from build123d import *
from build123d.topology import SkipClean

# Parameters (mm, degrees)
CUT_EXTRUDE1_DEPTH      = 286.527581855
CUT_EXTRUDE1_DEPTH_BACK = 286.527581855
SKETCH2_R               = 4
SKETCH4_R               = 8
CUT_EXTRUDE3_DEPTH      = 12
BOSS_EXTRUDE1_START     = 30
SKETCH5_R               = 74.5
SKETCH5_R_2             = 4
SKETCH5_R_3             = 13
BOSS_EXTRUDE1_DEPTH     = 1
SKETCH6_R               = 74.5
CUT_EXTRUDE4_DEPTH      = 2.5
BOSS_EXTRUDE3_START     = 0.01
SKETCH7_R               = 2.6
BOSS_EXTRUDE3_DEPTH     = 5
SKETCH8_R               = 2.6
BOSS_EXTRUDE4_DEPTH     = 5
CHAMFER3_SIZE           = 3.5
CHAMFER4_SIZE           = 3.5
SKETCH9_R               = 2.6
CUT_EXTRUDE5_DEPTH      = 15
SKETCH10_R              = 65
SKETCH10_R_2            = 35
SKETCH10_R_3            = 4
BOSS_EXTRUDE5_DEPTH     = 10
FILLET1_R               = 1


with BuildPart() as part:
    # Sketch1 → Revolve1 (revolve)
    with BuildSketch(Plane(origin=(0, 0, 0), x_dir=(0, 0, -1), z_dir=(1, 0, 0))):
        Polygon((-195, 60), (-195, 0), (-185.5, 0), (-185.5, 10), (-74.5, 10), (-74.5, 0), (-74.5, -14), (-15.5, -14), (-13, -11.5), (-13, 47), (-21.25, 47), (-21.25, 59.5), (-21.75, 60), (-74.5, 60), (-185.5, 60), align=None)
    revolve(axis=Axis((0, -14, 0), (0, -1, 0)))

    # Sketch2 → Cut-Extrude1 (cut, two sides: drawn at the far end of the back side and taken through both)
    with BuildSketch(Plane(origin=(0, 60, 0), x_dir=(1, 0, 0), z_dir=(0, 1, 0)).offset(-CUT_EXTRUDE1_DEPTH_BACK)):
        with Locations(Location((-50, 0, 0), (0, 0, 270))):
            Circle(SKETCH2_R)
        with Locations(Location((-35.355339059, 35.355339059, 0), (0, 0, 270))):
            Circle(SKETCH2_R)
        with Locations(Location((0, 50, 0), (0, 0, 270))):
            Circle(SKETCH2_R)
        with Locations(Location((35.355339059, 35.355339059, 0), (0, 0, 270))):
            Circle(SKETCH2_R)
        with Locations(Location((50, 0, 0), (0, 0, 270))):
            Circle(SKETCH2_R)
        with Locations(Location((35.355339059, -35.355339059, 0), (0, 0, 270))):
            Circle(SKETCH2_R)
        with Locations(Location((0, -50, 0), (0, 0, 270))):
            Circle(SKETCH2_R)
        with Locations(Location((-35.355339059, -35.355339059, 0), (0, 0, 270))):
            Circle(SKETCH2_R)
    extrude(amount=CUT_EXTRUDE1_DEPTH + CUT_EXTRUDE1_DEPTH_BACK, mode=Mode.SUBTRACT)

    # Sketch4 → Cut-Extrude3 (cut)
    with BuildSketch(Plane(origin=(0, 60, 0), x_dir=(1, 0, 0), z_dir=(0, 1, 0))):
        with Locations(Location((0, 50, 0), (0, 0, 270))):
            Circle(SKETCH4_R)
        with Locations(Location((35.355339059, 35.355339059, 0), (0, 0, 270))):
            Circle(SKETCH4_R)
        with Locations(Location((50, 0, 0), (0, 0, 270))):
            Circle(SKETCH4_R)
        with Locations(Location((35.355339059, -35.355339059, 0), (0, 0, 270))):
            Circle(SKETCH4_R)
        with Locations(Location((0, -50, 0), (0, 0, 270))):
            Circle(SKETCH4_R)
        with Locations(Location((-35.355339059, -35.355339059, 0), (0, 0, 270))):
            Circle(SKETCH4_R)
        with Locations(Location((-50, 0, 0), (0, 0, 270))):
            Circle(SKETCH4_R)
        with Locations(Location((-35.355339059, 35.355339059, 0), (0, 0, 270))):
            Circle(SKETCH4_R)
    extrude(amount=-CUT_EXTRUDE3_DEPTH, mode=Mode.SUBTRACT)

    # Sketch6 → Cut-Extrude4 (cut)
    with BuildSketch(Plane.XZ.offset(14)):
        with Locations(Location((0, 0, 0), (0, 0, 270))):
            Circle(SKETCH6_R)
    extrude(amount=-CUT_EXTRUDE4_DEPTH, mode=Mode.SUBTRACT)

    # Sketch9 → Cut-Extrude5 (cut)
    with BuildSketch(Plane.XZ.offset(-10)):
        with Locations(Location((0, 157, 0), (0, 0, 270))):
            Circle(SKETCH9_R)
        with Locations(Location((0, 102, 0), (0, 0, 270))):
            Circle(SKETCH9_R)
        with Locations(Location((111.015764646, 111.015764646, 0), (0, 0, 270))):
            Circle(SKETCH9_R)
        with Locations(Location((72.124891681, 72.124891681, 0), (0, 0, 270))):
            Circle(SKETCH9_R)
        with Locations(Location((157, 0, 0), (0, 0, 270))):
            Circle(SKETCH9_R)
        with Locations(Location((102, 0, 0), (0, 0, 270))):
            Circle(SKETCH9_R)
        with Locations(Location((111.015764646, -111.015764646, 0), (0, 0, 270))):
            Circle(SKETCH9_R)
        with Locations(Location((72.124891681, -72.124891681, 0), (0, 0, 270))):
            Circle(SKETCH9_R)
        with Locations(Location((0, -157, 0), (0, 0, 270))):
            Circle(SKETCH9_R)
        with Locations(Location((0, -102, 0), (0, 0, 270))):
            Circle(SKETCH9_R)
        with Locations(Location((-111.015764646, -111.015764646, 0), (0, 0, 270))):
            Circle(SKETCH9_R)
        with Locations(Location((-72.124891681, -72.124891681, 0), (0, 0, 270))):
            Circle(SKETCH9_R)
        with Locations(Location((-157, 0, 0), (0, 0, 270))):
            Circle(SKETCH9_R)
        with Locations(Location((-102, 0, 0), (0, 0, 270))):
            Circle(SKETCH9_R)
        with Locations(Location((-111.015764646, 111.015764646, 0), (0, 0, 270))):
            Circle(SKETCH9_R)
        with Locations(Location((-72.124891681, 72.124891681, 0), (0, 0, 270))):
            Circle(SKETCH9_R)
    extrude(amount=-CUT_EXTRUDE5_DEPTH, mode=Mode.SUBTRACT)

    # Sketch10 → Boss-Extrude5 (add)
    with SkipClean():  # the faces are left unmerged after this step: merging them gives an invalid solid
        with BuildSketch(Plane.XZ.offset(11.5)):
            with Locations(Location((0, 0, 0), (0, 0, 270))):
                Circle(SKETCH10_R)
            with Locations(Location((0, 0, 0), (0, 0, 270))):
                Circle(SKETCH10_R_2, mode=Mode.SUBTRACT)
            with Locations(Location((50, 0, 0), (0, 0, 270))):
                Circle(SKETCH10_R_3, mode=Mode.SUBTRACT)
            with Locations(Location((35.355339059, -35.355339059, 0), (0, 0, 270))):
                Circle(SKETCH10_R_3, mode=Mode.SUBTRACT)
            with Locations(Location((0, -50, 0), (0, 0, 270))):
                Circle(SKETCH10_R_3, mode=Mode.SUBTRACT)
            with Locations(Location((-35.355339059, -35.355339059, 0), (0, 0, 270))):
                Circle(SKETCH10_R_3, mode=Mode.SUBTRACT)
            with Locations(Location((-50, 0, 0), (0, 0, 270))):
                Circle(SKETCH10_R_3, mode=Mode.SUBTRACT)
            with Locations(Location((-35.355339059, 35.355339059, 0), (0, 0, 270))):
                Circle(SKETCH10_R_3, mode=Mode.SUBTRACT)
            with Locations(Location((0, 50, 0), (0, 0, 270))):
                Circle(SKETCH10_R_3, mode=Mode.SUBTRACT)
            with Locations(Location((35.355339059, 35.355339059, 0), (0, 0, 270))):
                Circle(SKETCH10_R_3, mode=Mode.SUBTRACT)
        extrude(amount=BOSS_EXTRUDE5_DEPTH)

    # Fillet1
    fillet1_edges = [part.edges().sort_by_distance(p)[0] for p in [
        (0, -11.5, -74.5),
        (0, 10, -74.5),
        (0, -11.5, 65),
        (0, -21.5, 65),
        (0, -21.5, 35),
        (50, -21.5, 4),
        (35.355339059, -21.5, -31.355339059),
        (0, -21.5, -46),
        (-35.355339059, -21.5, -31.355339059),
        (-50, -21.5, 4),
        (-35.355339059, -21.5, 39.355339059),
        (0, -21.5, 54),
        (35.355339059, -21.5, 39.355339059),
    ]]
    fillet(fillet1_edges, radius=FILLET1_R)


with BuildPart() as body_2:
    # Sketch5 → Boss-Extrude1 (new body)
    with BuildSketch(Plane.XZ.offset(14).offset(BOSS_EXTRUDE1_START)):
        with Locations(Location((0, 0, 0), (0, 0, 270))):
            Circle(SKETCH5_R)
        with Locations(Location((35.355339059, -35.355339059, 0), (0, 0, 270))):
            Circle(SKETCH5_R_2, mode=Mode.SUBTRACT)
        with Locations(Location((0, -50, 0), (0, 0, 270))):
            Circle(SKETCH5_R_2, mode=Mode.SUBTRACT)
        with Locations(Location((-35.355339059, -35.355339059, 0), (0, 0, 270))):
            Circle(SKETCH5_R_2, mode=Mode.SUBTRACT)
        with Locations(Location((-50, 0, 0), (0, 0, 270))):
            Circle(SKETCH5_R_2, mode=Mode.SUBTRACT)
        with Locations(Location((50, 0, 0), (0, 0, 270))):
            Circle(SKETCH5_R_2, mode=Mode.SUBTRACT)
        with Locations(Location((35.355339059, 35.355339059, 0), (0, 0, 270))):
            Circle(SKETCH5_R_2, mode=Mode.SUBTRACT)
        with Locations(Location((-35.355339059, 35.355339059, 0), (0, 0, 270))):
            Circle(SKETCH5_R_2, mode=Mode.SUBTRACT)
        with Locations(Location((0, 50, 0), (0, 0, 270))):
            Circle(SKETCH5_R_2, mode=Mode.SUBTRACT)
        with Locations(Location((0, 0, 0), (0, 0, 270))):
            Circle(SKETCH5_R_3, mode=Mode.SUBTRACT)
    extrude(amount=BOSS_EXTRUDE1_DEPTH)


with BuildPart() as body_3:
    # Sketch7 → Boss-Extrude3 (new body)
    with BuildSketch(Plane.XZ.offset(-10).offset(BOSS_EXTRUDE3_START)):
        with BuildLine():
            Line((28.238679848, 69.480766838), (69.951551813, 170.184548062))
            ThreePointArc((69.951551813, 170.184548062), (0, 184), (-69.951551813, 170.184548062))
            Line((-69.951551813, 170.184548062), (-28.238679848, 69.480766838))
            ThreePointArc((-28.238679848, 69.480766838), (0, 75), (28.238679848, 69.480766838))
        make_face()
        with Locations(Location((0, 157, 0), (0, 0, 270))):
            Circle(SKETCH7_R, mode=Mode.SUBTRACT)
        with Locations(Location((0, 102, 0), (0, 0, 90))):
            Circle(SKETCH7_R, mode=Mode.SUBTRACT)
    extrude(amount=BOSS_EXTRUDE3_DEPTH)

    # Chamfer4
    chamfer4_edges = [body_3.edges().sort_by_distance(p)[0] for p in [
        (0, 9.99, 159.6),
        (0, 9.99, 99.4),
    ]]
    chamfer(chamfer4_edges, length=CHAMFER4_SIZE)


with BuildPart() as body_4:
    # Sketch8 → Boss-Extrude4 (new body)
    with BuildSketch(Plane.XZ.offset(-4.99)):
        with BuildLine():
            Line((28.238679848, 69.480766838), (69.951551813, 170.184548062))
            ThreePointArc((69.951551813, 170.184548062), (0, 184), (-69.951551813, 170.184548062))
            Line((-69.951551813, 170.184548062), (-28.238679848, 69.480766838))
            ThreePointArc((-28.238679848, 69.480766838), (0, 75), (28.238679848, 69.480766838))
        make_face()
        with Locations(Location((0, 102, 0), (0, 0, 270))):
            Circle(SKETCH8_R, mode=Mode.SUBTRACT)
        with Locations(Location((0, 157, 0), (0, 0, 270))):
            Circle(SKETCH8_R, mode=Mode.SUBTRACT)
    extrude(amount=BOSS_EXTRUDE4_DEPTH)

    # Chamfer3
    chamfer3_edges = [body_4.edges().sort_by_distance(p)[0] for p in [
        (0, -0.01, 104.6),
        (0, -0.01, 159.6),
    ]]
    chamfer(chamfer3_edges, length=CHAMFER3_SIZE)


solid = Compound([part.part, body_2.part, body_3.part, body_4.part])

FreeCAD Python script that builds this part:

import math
import FreeCAD as App
import Part
import Sketcher
Q = App.Units.Quantity


def edges_at(feature, points):
    """Names of the edges that pass closest to the given points."""
    edges = feature.Shape.Edges
    near = lambda p: min(range(len(edges)), key=lambda i: edges[i].distToShape(Part.Vertex(*p))[0])
    return sorted({f"Edge{near(p) + 1}" for p in points})

doc = App.newDocument("Part")
body = doc.addObject("PartDesign::Body", "Body")

# Sketch on YZ plane
sketch1 = body.newObject("Sketcher::SketchObject", "Sketch")
sketch1.AttachmentSupport = (doc.getObject("YZ_Plane"), [""])
sketch1.MapMode = "FlatFace"
sketch1.addGeometry([
    Part.LineSegment(App.Vector(60, 195, 0), App.Vector(0, 195, 0)),  # 0
    Part.LineSegment(App.Vector(0, 195, 0), App.Vector(0, 185.5, 0)),  # 1
    Part.LineSegment(App.Vector(0, 185.5, 0), App.Vector(10, 185.5, 0)),  # 2
    Part.LineSegment(App.Vector(10, 185.5, 0), App.Vector(10, 74.5, 0)),  # 3
    Part.LineSegment(App.Vector(10, 74.5, 0), App.Vector(-14, 74.5, 0)),  # 4
    Part.LineSegment(App.Vector(-14, 74.5, 0), App.Vector(-14, 15.5, 0)),  # 5
    Part.LineSegment(App.Vector(-14, 15.5, 0), App.Vector(-11.5, 13, 0)),  # 6
    Part.LineSegment(App.Vector(-11.5, 13, 0), App.Vector(47, 13, 0)),  # 7
    Part.LineSegment(App.Vector(47, 13, 0), App.Vector(47, 21.25, 0)),  # 8
    Part.LineSegment(App.Vector(47, 21.25, 0), App.Vector(59.5, 21.25, 0)),  # 9
    Part.LineSegment(App.Vector(59.5, 21.25, 0), App.Vector(60, 21.75, 0)),  # 10
    Part.LineSegment(App.Vector(60, 21.75, 0), App.Vector(60, 195, 0)),  # 11
], False)
sketch1.addConstraint([
    Sketcher.Constraint("Coincident", 0, 2, 1, 1),
    Sketcher.Constraint("Coincident", 1, 2, 2, 1),
    Sketcher.Constraint("Coincident", 2, 2, 3, 1),
    Sketcher.Constraint("Coincident", 3, 2, 4, 1),
    Sketcher.Constraint("Coincident", 4, 2, 5, 1),
    Sketcher.Constraint("Coincident", 5, 2, 6, 1),
    Sketcher.Constraint("Coincident", 6, 2, 7, 1),
    Sketcher.Constraint("Coincident", 7, 2, 8, 1),
    Sketcher.Constraint("Coincident", 8, 2, 9, 1),
    Sketcher.Constraint("Coincident", 9, 2, 10, 1),
    Sketcher.Constraint("Coincident", 10, 2, 11, 1),
    Sketcher.Constraint("Coincident", 11, 2, 0, 1),
    Sketcher.Constraint("Horizontal", 0),
    Sketcher.Constraint("Vertical", 1),
    Sketcher.Constraint("Horizontal", 2),
    Sketcher.Constraint("Vertical", 3),
    Sketcher.Constraint("Horizontal", 4),
    Sketcher.Constraint("Vertical", 5),
    Sketcher.Constraint("Horizontal", 7),
    Sketcher.Constraint("Vertical", 8),
    Sketcher.Constraint("Horizontal", 9),
    Sketcher.Constraint("Vertical", 11),
    Sketcher.Constraint("PointOnObject", 0, 2, -2),
    Sketcher.Constraint("Perpendicular", 6, 10),
    Sketcher.Constraint("DistanceX", 0, 2, 0, 1, Q("60 mm")),
    Sketcher.Constraint("DistanceX", 2, 1, 2, 2, Q("10 mm")),
    Sketcher.Constraint("DistanceX", 4, 2, 4, 1, Q("24 mm")),
    Sketcher.Constraint("DistanceY", 3, 2, 3, 1, Q("111 mm")),
    Sketcher.Constraint("DistanceY", 5, 2, 5, 1, Q("59 mm")),
    Sketcher.Constraint("Angle", 6, Q("-45 deg")),
    Sketcher.Constraint("DistanceX", 7, 1, 7, 2, Q("58.5 mm")),
    Sketcher.Constraint("DistanceX", 9, 1, 9, 2, Q("12.5 mm")),
    Sketcher.Constraint("DistanceY", 1, 2, 1, 1, Q("9.5 mm")),
    Sketcher.Constraint("DistanceY", -1, 1, 0, 2, Q("195 mm")),
    Sketcher.Constraint("DistanceY", -1, 1, 6, 2, Q("13 mm")),
    Sketcher.Constraint("DistanceY", 8, 1, 8, 2, Q("8.25 mm")),
])
revolution = body.newObject("PartDesign::Revolution", "Revolution")
revolution.Profile = sketch1
revolution.ReferenceAxis = (sketch1, ["H_Axis"])
revolution.Angle = 360

# Sketch on XZ plane
sketch2 = body.newObject("Sketcher::SketchObject", "Sketch001")
sketch2.AttachmentSupport = (doc.getObject("XZ_Plane"), [""])
sketch2.MapMode = "FlatFace"
sketch2.AttachmentOffset = App.Placement(App.Vector(0, 0, -60), App.Rotation())
sketch2.addGeometry([
    Part.Circle(App.Vector(-50, 0, 0), App.Vector(0, 0, 1), 4),  # 0
    Part.Circle(App.Vector(-35.355339, -35.355339, 0), App.Vector(0, 0, 1), 4),  # 1
    Part.Circle(App.Vector(0, -50, 0), App.Vector(0, 0, 1), 4),  # 2
    Part.Circle(App.Vector(35.355339, -35.355339, 0), App.Vector(0, 0, 1), 4),  # 3
    Part.Circle(App.Vector(50, 0, 0), App.Vector(0, 0, 1), 4),  # 4
    Part.Circle(App.Vector(35.355339, 35.355339, 0), App.Vector(0, 0, 1), 4),  # 5
    Part.Circle(App.Vector(0, 50, 0), App.Vector(0, 0, 1), 4),  # 6
    Part.Circle(App.Vector(-35.355339, 35.355339, 0), App.Vector(0, 0, 1), 4),  # 7
], False)
sketch2.addConstraint([
    Sketcher.Constraint("Equal", 0, 1),
    Sketcher.Constraint("Equal", 1, 2),
    Sketcher.Constraint("Equal", 2, 3),
    Sketcher.Constraint("Equal", 3, 4),
    Sketcher.Constraint("Equal", 4, 5),
    Sketcher.Constraint("Equal", 5, 6),
    Sketcher.Constraint("Equal", 6, 7),
    Sketcher.Constraint("Symmetric", 0, 3, 4, 3, -1, 1),
    Sketcher.Constraint("Symmetric", 1, 3, 5, 3, -1, 1),
    Sketcher.Constraint("Symmetric", 2, 3, 6, 3, -1, 1),
    Sketcher.Constraint("Symmetric", 3, 3, 7, 3, -1, 1),
    Sketcher.Constraint("Symmetric", 1, 3, 3, 3, -2),
    Sketcher.Constraint("PointOnObject", 0, 3, -1),
    Sketcher.Constraint("PointOnObject", 2, 3, -2),
    Sketcher.Constraint("Diameter", 0, Q("8 mm")),
    Sketcher.Constraint("DistanceX", 0, 3, -1, 1, Q("50 mm")),
    Sketcher.Constraint("DistanceY", 2, 3, -1, 1, Q("50 mm")),
    Sketcher.Constraint("DistanceX", 1, 3, -1, 1, Q("35.355339 mm")),
    Sketcher.Constraint("DistanceY", 1, 3, -1, 1, Q("35.355339 mm")),
])
pocket1 = body.newObject("PartDesign::Pocket", "Pocket")
pocket1.Profile = sketch2
pocket1.Type = "ThroughAll"
pocket1.Midplane = True

# Sketch on XZ plane
sketch3 = body.newObject("Sketcher::SketchObject", "Sketch002")
sketch3.AttachmentSupport = (doc.getObject("XZ_Plane"), [""])
sketch3.MapMode = "FlatFace"
sketch3.AttachmentOffset = App.Placement(App.Vector(0, 0, -60), App.Rotation())
sketch3.addGeometry([
    Part.Circle(App.Vector(0, -50, 0), App.Vector(0, 0, 1), 8),  # 0
    Part.Circle(App.Vector(35.355339, -35.355339, 0), App.Vector(0, 0, 1), 8),  # 1
    Part.Circle(App.Vector(50, 0, 0), App.Vector(0, 0, 1), 8),  # 2
    Part.Circle(App.Vector(35.355339, 35.355339, 0), App.Vector(0, 0, 1), 8),  # 3
    Part.Circle(App.Vector(0, 50, 0), App.Vector(0, 0, 1), 8),  # 4
    Part.Circle(App.Vector(-35.355339, 35.355339, 0), App.Vector(0, 0, 1), 8),  # 5
    Part.Circle(App.Vector(-50, 0, 0), App.Vector(0, 0, 1), 8),  # 6
    Part.Circle(App.Vector(-35.355339, -35.355339, 0), App.Vector(0, 0, 1), 8),  # 7
], False)
sketch3.addConstraint([
    Sketcher.Constraint("Equal", 0, 1),
    Sketcher.Constraint("Equal", 1, 2),
    Sketcher.Constraint("Equal", 2, 3),
    Sketcher.Constraint("Equal", 3, 4),
    Sketcher.Constraint("Equal", 4, 5),
    Sketcher.Constraint("Equal", 5, 6),
    Sketcher.Constraint("Equal", 6, 7),
    Sketcher.Constraint("Symmetric", 0, 3, 4, 3, -1, 1),
    Sketcher.Constraint("Symmetric", 1, 3, 5, 3, -1, 1),
    Sketcher.Constraint("Symmetric", 2, 3, 6, 3, -1, 1),
    Sketcher.Constraint("Symmetric", 3, 3, 7, 3, -1, 1),
    Sketcher.Constraint("Symmetric", 3, 3, 5, 3, -2),
    Sketcher.Constraint("PointOnObject", 0, 3, -2),
    Sketcher.Constraint("PointOnObject", 2, 3, -1),
    Sketcher.Constraint("Diameter", 0, Q("16 mm")),
    Sketcher.Constraint("DistanceY", 0, 3, -1, 1, Q("50 mm")),
    Sketcher.Constraint("DistanceX", -1, 1, 2, 3, Q("50 mm")),
    Sketcher.Constraint("DistanceX", -1, 1, 1, 3, Q("35.355339 mm")),
    Sketcher.Constraint("DistanceY", 1, 3, -1, 1, Q("35.355339 mm")),
])
pocket2 = body.newObject("PartDesign::Pocket", "Pocket001")
pocket2.Profile = sketch3
pocket2.Length = 12
pocket2.Reversed = True

# Sketch on XZ plane
sketch4 = body.newObject("Sketcher::SketchObject", "Sketch003")
sketch4.AttachmentSupport = (doc.getObject("XZ_Plane"), [""])
sketch4.MapMode = "FlatFace"
sketch4.AttachmentOffset = App.Placement(App.Vector(0, 0, 14), App.Rotation())
sketch4.addGeometry(Part.Circle(App.Vector(0, 0, 0), App.Vector(0, 0, 1), 74.5), False)
sketch4.addConstraint([
    Sketcher.Constraint("Coincident", 0, 3, -1, 1),
    Sketcher.Constraint("Diameter", 0, Q("149 mm")),
])
pocket3 = body.newObject("PartDesign::Pocket", "Pocket002")
pocket3.Profile = sketch4
pocket3.Length = 2.5

# Sketch on XZ plane
sketch5 = body.newObject("Sketcher::SketchObject", "Sketch004")
sketch5.AttachmentSupport = (doc.getObject("XZ_Plane"), [""])
sketch5.MapMode = "FlatFace"
sketch5.AttachmentOffset = App.Placement(App.Vector(0, 0, -10), App.Rotation())
sketch5.addGeometry([
    Part.Circle(App.Vector(0, 157, 0), App.Vector(0, 0, 1), 2.6),  # 0
    Part.Circle(App.Vector(0, 102, 0), App.Vector(0, 0, 1), 2.6),  # 1
    Part.Circle(App.Vector(111.015765, 111.015765, 0), App.Vector(0, 0, 1), 2.6),  # 2
    Part.Circle(App.Vector(72.124892, 72.124892, 0), App.Vector(0, 0, 1), 2.6),  # 3
    Part.Circle(App.Vector(157, 0, 0), App.Vector(0, 0, 1), 2.6),  # 4
    Part.Circle(App.Vector(102, 0, 0), App.Vector(0, 0, 1), 2.6),  # 5
    Part.Circle(App.Vector(111.015765, -111.015765, 0), App.Vector(0, 0, 1), 2.6),  # 6
    Part.Circle(App.Vector(72.124892, -72.124892, 0), App.Vector(0, 0, 1), 2.6),  # 7
    Part.Circle(App.Vector(0, -157, 0), App.Vector(0, 0, 1), 2.6),  # 8
    Part.Circle(App.Vector(0, -102, 0), App.Vector(0, 0, 1), 2.6),  # 9
    Part.Circle(App.Vector(-111.015765, -111.015765, 0), App.Vector(0, 0, 1), 2.6),  # 10
    Part.Circle(App.Vector(-72.124892, -72.124892, 0), App.Vector(0, 0, 1), 2.6),  # 11
    Part.Circle(App.Vector(-157, 0, 0), App.Vector(0, 0, 1), 2.6),  # 12
    Part.Circle(App.Vector(-102, 0, 0), App.Vector(0, 0, 1), 2.6),  # 13
    Part.Circle(App.Vector(-111.015765, 111.015765, 0), App.Vector(0, 0, 1), 2.6),  # 14
    Part.Circle(App.Vector(-72.124892, 72.124892, 0), App.Vector(0, 0, 1), 2.6),  # 15
], False)
sketch5.addConstraint([
    Sketcher.Constraint("Equal", 0, 1),
    Sketcher.Constraint("Equal", 1, 2),
    Sketcher.Constraint("Equal", 2, 3),
    Sketcher.Constraint("Equal", 3, 4),
    Sketcher.Constraint("Equal", 4, 5),
    Sketcher.Constraint("Equal", 5, 6),
    Sketcher.Constraint("Equal", 6, 7),
    Sketcher.Constraint("Equal", 7, 8),
    Sketcher.Constraint("Equal", 8, 9),
    Sketcher.Constraint("Equal", 9, 10),
    Sketcher.Constraint("Equal", 10, 11),
    Sketcher.Constraint("Equal", 11, 12),
    Sketcher.Constraint("Equal", 12, 13),
    Sketcher.Constraint("Equal", 13, 14),
    Sketcher.Constraint("Equal", 14, 15),
    Sketcher.Constraint("Symmetric", 0, 3, 8, 3, -1, 1),
    Sketcher.Constraint("Symmetric", 1, 3, 9, 3, -1, 1),
    Sketcher.Constraint("Symmetric", 2, 3, 10, 3, -1, 1),
    Sketcher.Constraint("Symmetric", 3, 3, 11, 3, -1, 1),
    Sketcher.Constraint("Symmetric", 4, 3, 12, 3, -1, 1),
    Sketcher.Constraint("Symmetric", 5, 3, 13, 3, -1, 1),
    Sketcher.Constraint("Symmetric", 6, 3, 14, 3, -1, 1),
    Sketcher.Constraint("Symmetric", 7, 3, 15, 3, -1, 1),
    Sketcher.Constraint("Symmetric", 6, 3, 10, 3, -2),
    Sketcher.Constraint("Symmetric", 7, 3, 11, 3, -2),
    Sketcher.Constraint("PointOnObject", 0, 3, -2),
    Sketcher.Constraint("PointOnObject", 1, 3, -2),
    Sketcher.Constraint("PointOnObject", 4, 3, -1),
    Sketcher.Constraint("PointOnObject", 5, 3, -1),
    Sketcher.Constraint("Diameter", 0, Q("5.2 mm")),
    Sketcher.Constraint("DistanceY", -1, 1, 0, 3, Q("157 mm")),
    Sketcher.Constraint("DistanceY", -1, 1, 1, 3, Q("102 mm")),
    Sketcher.Constraint("DistanceX", -1, 1, 4, 3, Q("157 mm")),
    Sketcher.Constraint("DistanceX", -1, 1, 5, 3, Q("102 mm")),
    Sketcher.Constraint("DistanceX", -1, 1, 3, 3, Q("72.124892 mm")),
    Sketcher.Constraint("DistanceY", -1, 1, 3, 3, Q("72.124892 mm")),
    Sketcher.Constraint("DistanceY", 6, 3, 2, 3, Q("222.031529 mm")),
    Sketcher.Constraint("DistanceX", 10, 3, 6, 3, Q("222.031529 mm")),
])
pocket4 = body.newObject("PartDesign::Pocket", "Pocket003")
pocket4.Profile = sketch5
pocket4.Length = 15

# Sketch on XZ plane
sketch6 = body.newObject("Sketcher::SketchObject", "Sketch005")
sketch6.AttachmentSupport = (doc.getObject("XZ_Plane"), [""])
sketch6.MapMode = "FlatFace"
sketch6.AttachmentOffset = App.Placement(App.Vector(0, 0, 11.5), App.Rotation())
sketch6.addGeometry([
    Part.Circle(App.Vector(0, 0, 0), App.Vector(0, 0, 1), 65),  # 0
    Part.Circle(App.Vector(-35.355339, 35.355339, 0), App.Vector(0, 0, 1), 4),  # 1
    Part.Circle(App.Vector(0, 50, 0), App.Vector(0, 0, 1), 4),  # 2
    Part.Circle(App.Vector(-50, 0, 0), App.Vector(0, 0, 1), 4),  # 3
    Part.Circle(App.Vector(-35.355339, -35.355339, 0), App.Vector(0, 0, 1), 4),  # 4
    Part.Circle(App.Vector(35.355339, 35.355339, 0), App.Vector(0, 0, 1), 4),  # 5
    Part.Circle(App.Vector(50, 0, 0), App.Vector(0, 0, 1), 4),  # 6
    Part.Circle(App.Vector(0, 0, 0), App.Vector(0, 0, 1), 35),  # 7
    Part.Circle(App.Vector(0, -50, 0), App.Vector(0, 0, 1), 4),  # 8
    Part.Circle(App.Vector(35.355339, -35.355339, 0), App.Vector(0, 0, 1), 4),  # 9
], False)
sketch6.addConstraint([
    Sketcher.Constraint("Coincident", 0, 3, -1, 1),
    Sketcher.Constraint("Coincident", 7, 3, -1, 1),
    Sketcher.Constraint("Equal", 1, 2),
    Sketcher.Constraint("Equal", 2, 3),
    Sketcher.Constraint("Equal", 3, 4),
    Sketcher.Constraint("Equal", 4, 5),
    Sketcher.Constraint("Equal", 5, 6),
    Sketcher.Constraint("Equal", 6, 8),
    Sketcher.Constraint("Equal", 8, 9),
    Sketcher.Constraint("Symmetric", 4, 3, 5, 3, -1, 1),
    Sketcher.Constraint("Symmetric", 3, 3, 6, 3, -1, 1),
    Sketcher.Constraint("Symmetric", 2, 3, 8, 3, -1, 1),
    Sketcher.Constraint("Symmetric", 1, 3, 9, 3, -1, 1),
    Sketcher.Constraint("Symmetric", 1, 3, 5, 3, -2),
    Sketcher.Constraint("PointOnObject", 2, 3, -2),
    Sketcher.Constraint("PointOnObject", 3, 3, -1),
    Sketcher.Constraint("Diameter", 0, Q("130 mm")),
    Sketcher.Constraint("Diameter", 1, Q("8 mm")),
    Sketcher.Constraint("Diameter", 7, Q("70 mm")),
    Sketcher.Constraint("DistanceY", -1, 1, 2, 3, Q("50 mm")),
    Sketcher.Constraint("DistanceX", 3, 3, -1, 1, Q("50 mm")),
    Sketcher.Constraint("DistanceX", 1, 3, -1, 1, Q("35.355339 mm")),
    Sketcher.Constraint("DistanceY", -1, 1, 1, 3, Q("35.355339 mm")),
])
pad1 = body.newObject("PartDesign::Pad", "Pad")
pad1.Profile = sketch6
pad1.Length = 10
doc.recompute()

fillet = body.newObject("PartDesign::Fillet", "Fillet")
fillet.Base = (pad1, edges_at(pad1, [
    (0, -11.5, -74.5),
    (0, 10, -74.5),
    (0, -11.5, 65),
    (0, -21.5, 65),
    (0, -21.5, 35),
    (50, -21.5, 4),
    (35.355, -21.5, -31.355),
    (0, -21.5, -46),
    (-35.355, -21.5, -31.355),
    (-50, -21.5, 4),
    (-35.355, -21.5, 39.355),
    (0, -21.5, 54),
    (35.355, -21.5, 39.355),
]))
fillet.Radius = 1
body2 = doc.addObject("PartDesign::Body", "Body001")

# Sketch on XZ plane
sketch7 = body2.newObject("Sketcher::SketchObject", "Sketch006")
sketch7.AttachmentSupport = (doc.getObject("XZ_Plane001"), [""])
sketch7.MapMode = "FlatFace"
sketch7.AttachmentOffset = App.Placement(App.Vector(0, 0, 44), App.Rotation())
sketch7.addGeometry([
    Part.Circle(App.Vector(0, 0, 0), App.Vector(0, 0, 1), 74.5),  # 0
    Part.Circle(App.Vector(-35.355339, 35.355339, 0), App.Vector(0, 0, 1), 4),  # 1
    Part.Circle(App.Vector(0, 50, 0), App.Vector(0, 0, 1), 4),  # 2
    Part.Circle(App.Vector(-50, 0, 0), App.Vector(0, 0, 1), 4),  # 3
    Part.Circle(App.Vector(-35.355339, -35.355339, 0), App.Vector(0, 0, 1), 4),  # 4
    Part.Circle(App.Vector(35.355339, 35.355339, 0), App.Vector(0, 0, 1), 4),  # 5
    Part.Circle(App.Vector(50, 0, 0), App.Vector(0, 0, 1), 4),  # 6
    Part.Circle(App.Vector(0, 0, 0), App.Vector(0, 0, 1), 13),  # 7
    Part.Circle(App.Vector(0, -50, 0), App.Vector(0, 0, 1), 4),  # 8
    Part.Circle(App.Vector(35.355339, -35.355339, 0), App.Vector(0, 0, 1), 4),  # 9
], False)
sketch7.addConstraint([
    Sketcher.Constraint("Coincident", 0, 3, -1, 1),
    Sketcher.Constraint("Coincident", 7, 3, -1, 1),
    Sketcher.Constraint("Equal", 1, 2),
    Sketcher.Constraint("Equal", 2, 3),
    Sketcher.Constraint("Equal", 3, 4),
    Sketcher.Constraint("Equal", 4, 5),
    Sketcher.Constraint("Equal", 5, 6),
    Sketcher.Constraint("Equal", 6, 8),
    Sketcher.Constraint("Equal", 8, 9),
    Sketcher.Constraint("Symmetric", 4, 3, 5, 3, -1, 1),
    Sketcher.Constraint("Symmetric", 3, 3, 6, 3, -1, 1),
    Sketcher.Constraint("Symmetric", 2, 3, 8, 3, -1, 1),
    Sketcher.Constraint("Symmetric", 1, 3, 9, 3, -1, 1),
    Sketcher.Constraint("Symmetric", 1, 3, 5, 3, -2),
    Sketcher.Constraint("PointOnObject", 2, 3, -2),
    Sketcher.Constraint("PointOnObject", 3, 3, -1),
    Sketcher.Constraint("Diameter", 0, Q("149 mm")),
    Sketcher.Constraint("Diameter", 1, Q("8 mm")),
    Sketcher.Constraint("Diameter", 7, Q("26 mm")),
    Sketcher.Constraint("DistanceY", -1, 1, 2, 3, Q("50 mm")),
    Sketcher.Constraint("DistanceX", 3, 3, -1, 1, Q("50 mm")),
    Sketcher.Constraint("DistanceX", 1, 3, -1, 1, Q("35.355339 mm")),
    Sketcher.Constraint("DistanceY", -1, 1, 1, 3, Q("35.355339 mm")),
])
pad2 = body2.newObject("PartDesign::Pad", "Pad001")
pad2.Profile = sketch7
pad2.Length = 1
body3 = doc.addObject("PartDesign::Body", "Body002")

# Sketch on XZ plane
sketch8 = body3.newObject("Sketcher::SketchObject", "Sketch007")
sketch8.AttachmentSupport = (doc.getObject("XZ_Plane002"), [""])
sketch8.MapMode = "FlatFace"
sketch8.AttachmentOffset = App.Placement(App.Vector(0, 0, -9.99), App.Rotation())
sketch8.addGeometry([
    Part.LineSegment(App.Vector(28.23868, 69.480767, 0), App.Vector(69.951552, 170.184548, 0)),  # 0
    Part.ArcOfCircle(Part.Circle(App.Vector(0, 0, 0), App.Vector(0, 0, 1), 184), math.radians(67.655695), math.radians(112.344305)),  # 1
    Part.LineSegment(App.Vector(-69.951552, 170.184548, 0), App.Vector(-28.23868, 69.480767, 0)),  # 2
    Part.ArcOfCircle(Part.Circle(App.Vector(0, 0, 0), App.Vector(0, 0, 1), 75), math.radians(67.881975), math.radians(112.118025)),  # 3
    Part.Circle(App.Vector(0, 102, 0), App.Vector(0, 0, 1), 2.6),  # 4
    Part.Circle(App.Vector(0, 157, 0), App.Vector(0, 0, 1), 2.6),  # 5
], False)
sketch8.addConstraint([
    Sketcher.Constraint("Coincident", 0, 2, 1, 1),
    Sketcher.Constraint("Coincident", 1, 2, 2, 1),
    Sketcher.Constraint("Coincident", 2, 2, 3, 2),
    Sketcher.Constraint("Coincident", 3, 1, 0, 1),
    Sketcher.Constraint("Coincident", 1, 3, -1, 1),
    Sketcher.Constraint("Coincident", 3, 3, -1, 1),
    Sketcher.Constraint("Equal", 4, 5),
    Sketcher.Constraint("PointOnObject", 4, 3, -2),
    Sketcher.Constraint("PointOnObject", 5, 3, -2),
    Sketcher.Constraint("Horizontal", 0, 2, 1, 2),
    Sketcher.Constraint("Horizontal", 2, 2, 3, 1),
    Sketcher.Constraint("Radius", 1, Q("184 mm")),
    Sketcher.Constraint("Radius", 3, Q("75 mm")),
    Sketcher.Constraint("Diameter", 4, Q("5.2 mm")),
    Sketcher.Constraint("DistanceY", -1, 1, 4, 3, Q("102 mm")),
    Sketcher.Constraint("DistanceY", -1, 1, 5, 3, Q("157 mm")),
    Sketcher.Constraint("Angle", 0, Q("67.5 deg")),
    Sketcher.Constraint("DistanceX", -1, 1, 0, 2, Q("69.951552 mm")),
])
pad3 = body3.newObject("PartDesign::Pad", "Pad002")
pad3.Profile = sketch8
pad3.Length = 5
doc.recompute()

chamfer = body3.newObject("PartDesign::Chamfer", "Chamfer")
chamfer.Base = (pad3, edges_at(pad3, [(0, 9.99, 159.6), (0, 9.99, 99.4)]))
chamfer.Size = 3.5
body4 = doc.addObject("PartDesign::Body", "Body003")

# Sketch on XZ plane
sketch9 = body4.newObject("Sketcher::SketchObject", "Sketch008")
sketch9.AttachmentSupport = (doc.getObject("XZ_Plane003"), [""])
sketch9.MapMode = "FlatFace"
sketch9.AttachmentOffset = App.Placement(App.Vector(0, 0, -4.99), App.Rotation())
sketch9.addGeometry([
    Part.LineSegment(App.Vector(28.23868, 69.480767, 0), App.Vector(69.951552, 170.184548, 0)),  # 0
    Part.ArcOfCircle(Part.Circle(App.Vector(0, 0, 0), App.Vector(0, 0, 1), 184), math.radians(67.655695), math.radians(112.344305)),  # 1
    Part.LineSegment(App.Vector(-69.951552, 170.184548, 0), App.Vector(-28.23868, 69.480767, 0)),  # 2
    Part.ArcOfCircle(Part.Circle(App.Vector(0, 0, 0), App.Vector(0, 0, 1), 75), math.radians(67.881975), math.radians(112.118025)),  # 3
    Part.Circle(App.Vector(0, 102, 0), App.Vector(0, 0, 1), 2.6),  # 4
    Part.Circle(App.Vector(0, 157, 0), App.Vector(0, 0, 1), 2.6),  # 5
], False)
sketch9.addConstraint([
    Sketcher.Constraint("Coincident", 0, 2, 1, 1),
    Sketcher.Constraint("Coincident", 1, 2, 2, 1),
    Sketcher.Constraint("Coincident", 2, 2, 3, 2),
    Sketcher.Constraint("Coincident", 3, 1, 0, 1),
    Sketcher.Constraint("Coincident", 1, 3, -1, 1),
    Sketcher.Constraint("Coincident", 3, 3, -1, 1),
    Sketcher.Constraint("Equal", 4, 5),
    Sketcher.Constraint("PointOnObject", 4, 3, -2),
    Sketcher.Constraint("PointOnObject", 5, 3, -2),
    Sketcher.Constraint("Horizontal", 0, 2, 1, 2),
    Sketcher.Constraint("Horizontal", 2, 2, 3, 1),
    Sketcher.Constraint("Radius", 1, Q("184 mm")),
    Sketcher.Constraint("Radius", 3, Q("75 mm")),
    Sketcher.Constraint("Diameter", 4, Q("5.2 mm")),
    Sketcher.Constraint("DistanceY", -1, 1, 4, 3, Q("102 mm")),
    Sketcher.Constraint("DistanceY", -1, 1, 5, 3, Q("157 mm")),
    Sketcher.Constraint("Angle", 0, Q("67.5 deg")),
    Sketcher.Constraint("DistanceX", -1, 1, 0, 2, Q("69.951552 mm")),
])
pad4 = body4.newObject("PartDesign::Pad", "Pad003")
pad4.Profile = sketch9
pad4.Length = 5
doc.recompute()

chamfer2 = body4.newObject("PartDesign::Chamfer", "Chamfer001")
chamfer2.Base = (pad4, edges_at(pad4, [(0, -0.01, 104.6), (0, -0.01, 159.6)]))
chamfer2.Size = 3.5

doc.recompute()
